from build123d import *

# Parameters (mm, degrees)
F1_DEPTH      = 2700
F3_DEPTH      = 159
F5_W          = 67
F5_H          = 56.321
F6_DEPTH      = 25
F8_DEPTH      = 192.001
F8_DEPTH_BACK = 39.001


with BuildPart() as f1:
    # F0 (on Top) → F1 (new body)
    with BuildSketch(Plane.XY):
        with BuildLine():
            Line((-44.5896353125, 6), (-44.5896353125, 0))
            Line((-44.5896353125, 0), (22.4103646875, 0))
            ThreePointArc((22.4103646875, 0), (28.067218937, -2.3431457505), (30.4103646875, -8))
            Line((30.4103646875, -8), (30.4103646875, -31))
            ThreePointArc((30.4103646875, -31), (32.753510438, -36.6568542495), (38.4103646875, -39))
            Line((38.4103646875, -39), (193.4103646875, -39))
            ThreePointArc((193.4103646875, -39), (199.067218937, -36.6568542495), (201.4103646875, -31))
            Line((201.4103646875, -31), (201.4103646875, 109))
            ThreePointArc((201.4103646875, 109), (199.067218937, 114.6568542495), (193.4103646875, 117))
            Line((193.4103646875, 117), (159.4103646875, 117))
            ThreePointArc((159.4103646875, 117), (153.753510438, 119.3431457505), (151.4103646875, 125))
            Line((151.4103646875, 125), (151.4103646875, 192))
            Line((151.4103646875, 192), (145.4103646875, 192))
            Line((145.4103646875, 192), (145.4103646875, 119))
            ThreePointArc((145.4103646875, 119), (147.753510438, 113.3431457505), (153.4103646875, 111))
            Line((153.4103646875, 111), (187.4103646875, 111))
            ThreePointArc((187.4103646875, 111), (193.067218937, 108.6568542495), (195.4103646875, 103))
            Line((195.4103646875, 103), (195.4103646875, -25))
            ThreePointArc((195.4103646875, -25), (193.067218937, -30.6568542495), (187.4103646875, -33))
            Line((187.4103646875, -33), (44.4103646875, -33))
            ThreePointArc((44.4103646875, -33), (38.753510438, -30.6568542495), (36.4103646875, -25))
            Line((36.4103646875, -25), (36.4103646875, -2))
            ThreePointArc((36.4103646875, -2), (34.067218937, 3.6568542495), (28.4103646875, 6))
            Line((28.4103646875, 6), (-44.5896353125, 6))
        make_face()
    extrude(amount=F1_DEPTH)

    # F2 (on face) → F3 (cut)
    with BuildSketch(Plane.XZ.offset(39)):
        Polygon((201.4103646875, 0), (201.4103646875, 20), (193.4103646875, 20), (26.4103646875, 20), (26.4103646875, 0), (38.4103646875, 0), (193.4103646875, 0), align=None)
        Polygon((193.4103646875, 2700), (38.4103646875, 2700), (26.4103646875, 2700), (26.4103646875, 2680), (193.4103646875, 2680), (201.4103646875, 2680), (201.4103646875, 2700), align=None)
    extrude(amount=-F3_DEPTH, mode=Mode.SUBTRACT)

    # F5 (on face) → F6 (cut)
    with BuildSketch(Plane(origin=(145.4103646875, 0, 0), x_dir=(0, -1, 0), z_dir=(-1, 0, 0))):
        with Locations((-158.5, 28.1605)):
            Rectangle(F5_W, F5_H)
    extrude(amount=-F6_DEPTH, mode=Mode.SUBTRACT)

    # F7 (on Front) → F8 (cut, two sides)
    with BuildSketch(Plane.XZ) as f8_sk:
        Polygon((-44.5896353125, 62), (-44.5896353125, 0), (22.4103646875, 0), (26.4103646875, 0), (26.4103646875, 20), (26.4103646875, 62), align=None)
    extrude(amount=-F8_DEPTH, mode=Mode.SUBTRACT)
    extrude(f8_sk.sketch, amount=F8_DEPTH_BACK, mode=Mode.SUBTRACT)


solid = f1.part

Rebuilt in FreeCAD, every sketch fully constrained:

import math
import FreeCAD as App
import Part
import Sketcher
Q = App.Units.Quantity

doc = App.newDocument("Part")
params = doc.addObject("Spreadsheet::Sheet", "Params")
for row, (alias, value) in enumerate([
    ("sketch1_radius", "8 mm"),
    ("sketch1_width", "67 mm"),
    ("sketch1_width2", "155 mm"),
    ("sketch1_width3", "34 mm"),
    ("sketch1_width4", "6 mm"),
    ("pad1_length", "2700 mm"),
    ("sketch2_width", "175 mm"),
    ("sketch2_height", "20 mm"),
    ("pocket1_length", "159 mm"),
    ("sketch3_width", "67 mm"),
    ("pocket2_length", "25 mm"),
    ("sketch4_width", "71 mm"),
    ("sketch4_height", "62 mm"),
], start=1):
    params.set(f"A{row}", alias)
    params.set(f"B{row}", "=" + value)
    params.setAlias(f"B{row}", alias)

body = doc.addObject("PartDesign::Body", "Body")

# Sketch on XY plane
sketch1 = body.newObject("Sketcher::SketchObject", "Sketch")
sketch1.AttachmentSupport = (doc.getObject("XY_Plane"), [""])
sketch1.MapMode = "FlatFace"
sketch1.addGeometry([
    Part.LineSegment(App.Vector(-45, 6, 0), App.Vector(-45, 0, 0)),  # 0
    Part.LineSegment(App.Vector(-45, 0, 0), App.Vector(22, 0, 0)),  # 1
    Part.ArcOfCircle(Part.Circle(App.Vector(22, -8, 0), App.Vector(0, 0, 1), 8), math.radians(0), math.radians(90)),  # 2
    Part.LineSegment(App.Vector(30, -8, 0), App.Vector(30, -31, 0)),  # 3
    Part.ArcOfCircle(Part.Circle(App.Vector(38, -31, 0), App.Vector(0, 0, 1), 8), math.radians(180), math.radians(270)),  # 4
    Part.LineSegment(App.Vector(38, -39, 0), App.Vector(193, -39, 0)),  # 5
    Part.ArcOfCircle(Part.Circle(App.Vector(193, -31, 0), App.Vector(0, 0, 1), 8), math.radians(-90), math.radians(0)),  # 6
    Part.LineSegment(App.Vector(201, -31, 0), App.Vector(201, 109, 0)),  # 7
    Part.ArcOfCircle(Part.Circle(App.Vector(193, 109, 0), App.Vector(0, 0, 1), 8), math.radians(0), math.radians(90)),  # 8
    Part.LineSegment(App.Vector(193, 117, 0), App.Vector(159, 117, 0)),  # 9
    Part.ArcOfCircle(Part.Circle(App.Vector(159, 125, 0), App.Vector(0, 0, 1), 8), math.radians(180), math.radians(270)),  # 10
    Part.LineSegment(App.Vector(151, 125, 0), App.Vector(151, 192, 0)),  # 11
    Part.LineSegment(App.Vector(151, 192, 0), App.Vector(145, 192, 0)),  # 12
    Part.LineSegment(App.Vector(145, 192, 0), App.Vector(145, 119, 0)),  # 13
    Part.ArcOfCircle(Part.Circle(App.Vector(153, 119, 0), App.Vector(0, 0, 1), 8), math.radians(180), math.radians(270)),  # 14
    Part.LineSegment(App.Vector(153, 111, 0), App.Vector(187, 111, 0)),  # 15
    Part.ArcOfCircle(Part.Circle(App.Vector(187, 103, 0), App.Vector(0, 0, 1), 8), math.radians(0), math.radians(90)),  # 16
    Part.LineSegment(App.Vector(195, 103, 0), App.Vector(195, -25, 0)),  # 17
    Part.ArcOfCircle(Part.Circle(App.Vector(187, -25, 0), App.Vector(0, 0, 1), 8), math.radians(-90), math.radians(0)),  # 18
    Part.LineSegment(App.Vector(187, -33, 0), App.Vector(44, -33, 0)),  # 19
    Part.ArcOfCircle(Part.Circle(App.Vector(44, -25, 0), App.Vector(0, 0, 1), 8), math.radians(180), math.radians(270)),  # 20
    Part.LineSegment(App.Vector(36, -25, 0), App.Vector(36, -2, 0)),  # 21
    Part.ArcOfCircle(Part.Circle(App.Vector(28, -2, 0), App.Vector(0, 0, 1), 8), math.radians(0), math.radians(90)),  # 22
    Part.LineSegment(App.Vector(28, 6, 0), App.Vector(-45, 6, 0)),  # 23
], False)
sketch1.addConstraint([
    Sketcher.Constraint("Coincident", 0, 2, 1, 1),
    Sketcher.Constraint("Tangent", 1, 2, 2, 2),
    Sketcher.Constraint("Tangent", 2, 1, 3, 1),
    Sketcher.Constraint("Tangent", 3, 2, 4, 1),
    Sketcher.Constraint("Tangent", 4, 2, 5, 1),
    Sketcher.Constraint("Tangent", 5, 2, 6, 1),
    Sketcher.Constraint("Tangent", 6, 2, 7, 1),
    Sketcher.Constraint("Tangent", 7, 2, 8, 1),
    Sketcher.Constraint("Tangent", 8, 2, 9, 1),
    Sketcher.Constraint("Tangent", 9, 2, 10, 2),
    Sketcher.Constraint("Tangent", 10, 1, 11, 1),
    Sketcher.Constraint("Coincident", 11, 2, 12, 1),
    Sketcher.Constraint("Coincident", 12, 2, 13, 1),
    Sketcher.Constraint("Tangent", 13, 2, 14, 1),
    Sketcher.Constraint("Tangent", 14, 2, 15, 1),
    Sketcher.Constraint("Tangent", 15, 2, 16, 2),
    Sketcher.Constraint("Tangent", 16, 1, 17, 1),
    Sketcher.Constraint("Tangent", 17, 2, 18, 2),
    Sketcher.Constraint("Tangent", 18, 1, 19, 1),
    Sketcher.Constraint("Tangent", 19, 2, 20, 2),
    Sketcher.Constraint("Tangent", 20, 1, 21, 1),
    Sketcher.Constraint("Tangent", 21, 2, 22, 1),
    Sketcher.Constraint("Tangent", 22, 2, 23, 1),
    Sketcher.Constraint("Coincident", 23, 2, 0, 1),
    Sketcher.Constraint("Vertical", 0),
    Sketcher.Constraint("Horizontal", 1),
    Sketcher.Constraint("Vertical", 3),
    Sketcher.Constraint("Horizontal", 5),
    Sketcher.Constraint("Vertical", 7),
    Sketcher.Constraint("Horizontal", 9),
    Sketcher.Constraint("Vertical", 11),
    Sketcher.Constraint("Horizontal", 12),
    Sketcher.Constraint("Vertical", 13),
    Sketcher.Constraint("Horizontal", 15),
    Sketcher.Constraint("Vertical", 17),
    Sketcher.Constraint("Horizontal", 19),
    Sketcher.Constraint("Vertical", 21),
    Sketcher.Constraint("Horizontal", 23),
    Sketcher.Constraint("Equal", 2, 4),
    Sketcher.Constraint("Equal", 4, 6),
    Sketcher.Constraint("Equal", 6, 8),
    Sketcher.Constraint("Equal", 8, 10),
    Sketcher.Constraint("Equal", 10, 14),
    Sketcher.Constraint("Equal", 14, 16),
    Sketcher.Constraint("Equal", 16, 18),
    Sketcher.Constraint("Equal", 18, 20),
    Sketcher.Constraint("Equal", 20, 22),
    Sketcher.Constraint("PointOnObject", 0, 2, -1),
    Sketcher.Constraint("Equal", 9, 15),
    Sketcher.Constraint("Equal", 12, 0),
    Sketcher.Constraint("Equal", 1, 11),
    Sketcher.Constraint("Equal", 23, 13),
    Sketcher.Constraint("Equal", 3, 21),
    Sketcher.Constraint("Radius", 2, Q("8 mm")),
    Sketcher.Constraint("DistanceX", 1, 1, 1, 2, Q("67 mm")),
    Sketcher.Constraint("DistanceX", 5, 1, 5, 2, Q("155 mm")),
    Sketcher.Constraint("DistanceX", 9, 2, 9, 1, Q("34 mm")),
    Sketcher.Constraint("DistanceX", 12, 2, 12, 1, Q("6 mm")),
    Sketcher.Constraint("DistanceX", 19, 2, 19, 1, Q("143 mm")),
    Sketcher.Constraint("DistanceY", 3, 2, 3, 1, Q("23 mm")),
    Sketcher.Constraint("DistanceY", 7, 1, 7, 2, Q("140 mm")),
    Sketcher.Constraint("DistanceX", -1, 1, 2, 3, Q("22.410365 mm")),
])
sketch1.setExpression("Constraints[53]", "Params.sketch1_radius")
sketch1.setExpression("Constraints[54]", "Params.sketch1_width")
sketch1.setExpression("Constraints[55]", "Params.sketch1_width2")
sketch1.setExpression("Constraints[56]", "Params.sketch1_width3")
sketch1.setExpression("Constraints[57]", "Params.sketch1_width4")
pad1 = body.newObject("PartDesign::Pad", "Pad")
pad1.Profile = sketch1
pad1.setExpression("Length", "Params.pad1_length")

# Sketch on XZ plane
sketch2 = body.newObject("Sketcher::SketchObject", "Sketch001")
sketch2.AttachmentSupport = (doc.getObject("XZ_Plane"), [""])
sketch2.MapMode = "FlatFace"
sketch2.AttachmentOffset = App.Placement(App.Vector(0, 0, 39), App.Rotation())
sketch2.addGeometry([
    Part.LineSegment(App.Vector(201, 0, 0), App.Vector(201, 20, 0)),  # 0
    Part.LineSegment(App.Vector(201, 20, 0), App.Vector(26, 20, 0)),  # 1
    Part.LineSegment(App.Vector(26, 20, 0), App.Vector(26, 0, 0)),  # 2
    Part.LineSegment(App.Vector(26, 0, 0), App.Vector(201, 0, 0)),  # 3
    Part.LineSegment(App.Vector(26, 2700, 0), App.Vector(26, 2680, 0)),  # 4
    Part.LineSegment(App.Vector(26, 2680, 0), App.Vector(201, 2680, 0)),  # 5
    Part.LineSegment(App.Vector(201, 2680, 0), App.Vector(201, 2700, 0)),  # 6
    Part.LineSegment(App.Vector(201, 2700, 0), App.Vector(26, 2700, 0)),  # 7
], False)
sketch2.addConstraint([
    Sketcher.Constraint("Coincident", 0, 2, 1, 1),
    Sketcher.Constraint("Coincident", 1, 2, 2, 1),
    Sketcher.Constraint("Coincident", 2, 2, 3, 1),
    Sketcher.Constraint("Coincident", 3, 2, 0, 1),
    Sketcher.Constraint("Coincident", 4, 2, 5, 1),
    Sketcher.Constraint("Coincident", 5, 2, 6, 1),
    Sketcher.Constraint("Coincident", 6, 2, 7, 1),
    Sketcher.Constraint("Coincident", 7, 2, 4, 1),
    Sketcher.Constraint("Vertical", 0),
    Sketcher.Constraint("Horizontal", 1),
    Sketcher.Constraint("Vertical", 2),
    Sketcher.Constraint("Horizontal", 3),
    Sketcher.Constraint("Vertical", 4),
    Sketcher.Constraint("Horizontal", 5),
    Sketcher.Constraint("Vertical", 6),
    Sketcher.Constraint("Horizontal", 7),
    Sketcher.Constraint("PointOnObject", 2, 2, -1),
    Sketcher.Constraint("Vertical", 2, 2, 4, 2),
    Sketcher.Constraint("Vertical", 3, 2, 5, 2),
    Sketcher.Constraint("Equal", 2, 4),
    Sketcher.Constraint("DistanceX", 1, 2, 1, 1, Q("175 mm")),
    Sketcher.Constraint("DistanceY", 0, 1, 0, 2, Q("20 mm")),
    Sketcher.Constraint("DistanceY", -1, 1, 4, 2, Q("2680 mm")),
    Sketcher.Constraint("DistanceX", -1, 1, 0, 2, Q("201.410365 mm")),
])
sketch2.setExpression("Constraints[20]", "Params.sketch2_width")
sketch2.setExpression("Constraints[21]", "Params.sketch2_height")
pocket1 = body.newObject("PartDesign::Pocket", "Pocket")
pocket1.Profile = sketch2
pocket1.setExpression("Length", "Params.pocket1_length")

# Sketch on YZ plane
sketch3 = body.newObject("Sketcher::SketchObject", "Sketch002")
sketch3.AttachmentSupport = (doc.getObject("YZ_Plane"), [""])
sketch3.MapMode = "FlatFace"
sketch3.AttachmentOffset = App.Placement(App.Vector(0, 0, 145.410365), App.Rotation())
sketch3.addGeometry([
    Part.LineSegment(App.Vector(192, 56, 0), App.Vector(192, 0, 0)),
    Part.LineSegment(App.Vector(192, 0, 0), App.Vector(125, 0, 0)),
    Part.LineSegment(App.Vector(125, 0, 0), App.Vector(125, 56, 0)),
    Part.LineSegment(App.Vector(125, 56, 0), App.Vector(192, 56, 0)),
], False)
sketch3.addConstraint([
    Sketcher.Constraint("Coincident", 0, 2, 1, 1),
    Sketcher.Constraint("Coincident", 1, 2, 2, 1),
    Sketcher.Constraint("Coincident", 2, 2, 3, 1),
    Sketcher.Constraint("Coincident", 3, 2, 0, 1),
    Sketcher.Constraint("Vertical", 0),
    Sketcher.Constraint("Horizontal", 1),
    Sketcher.Constraint("Vertical", 2),
    Sketcher.Constraint("Horizontal", 3),
    Sketcher.Constraint("PointOnObject", 0, 2, -1),
    Sketcher.Constraint("DistanceX", 1, 2, 1, 1, Q("67 mm")),
    Sketcher.Constraint("DistanceX", -1, 1, 0, 2, Q("192 mm")),
    Sketcher.Constraint("DistanceY", 0, 2, 0, 1, Q("56.321 mm")),
])
sketch3.setExpression("Constraints[9]", "Params.sketch3_width")
pocket2 = body.newObject("PartDesign::Pocket", "Pocket001")
pocket2.Profile = sketch3
pocket2.setExpression("Length", "Params.pocket2_length")
pocket2.Reversed = True

# Sketch on XZ plane
sketch4 = body.newObject("Sketcher::SketchObject", "Sketch003")
sketch4.AttachmentSupport = (doc.getObject("XZ_Plane"), [""])
sketch4.MapMode = "FlatFace"
sketch4.addGeometry([
    Part.LineSegment(App.Vector(-45, 62, 0), App.Vector(-45, 0, 0)),
    Part.LineSegment(App.Vector(-45, 0, 0), App.Vector(26, 0, 0)),
    Part.LineSegment(App.Vector(26, 0, 0), App.Vector(26, 62, 0)),
    Part.LineSegment(App.Vector(26, 62, 0), App.Vector(-45, 62, 0)),
], False)
sketch4.addConstraint([
    Sketcher.Constraint("Coincident", 0, 2, 1, 1),
    Sketcher.Constraint("Coincident", 1, 2, 2, 1),
    Sketcher.Constraint("Coincident", 2, 2, 3, 1),
    Sketcher.Constraint("Coincident", 3, 2, 0, 1),
    Sketcher.Constraint("Vertical", 0),
    Sketcher.Constraint("Horizontal", 1),
    Sketcher.Constraint("Vertical", 2),
    Sketcher.Constraint("Horizontal", 3),
    Sketcher.Constraint("PointOnObject", 0, 2, -1),
    Sketcher.Constraint("DistanceX", 1, 1, 1, 2, Q("71 mm")),
    Sketcher.Constraint("DistanceY", 0, 2, 0, 1, Q("62 mm")),
    Sketcher.Constraint("DistanceX", 0, 2, -1, 1, Q("44.589635 mm")),
])
sketch4.setExpression("Constraints[9]", "Params.sketch4_width")
sketch4.setExpression("Constraints[10]", "Params.sketch4_height")
pocket3 = body.newObject("PartDesign::Pocket", "Pocket002")
pocket3.Profile = sketch4
pocket3.Type = "ThroughAll"
pocket3.Midplane = True

doc.recompute()
